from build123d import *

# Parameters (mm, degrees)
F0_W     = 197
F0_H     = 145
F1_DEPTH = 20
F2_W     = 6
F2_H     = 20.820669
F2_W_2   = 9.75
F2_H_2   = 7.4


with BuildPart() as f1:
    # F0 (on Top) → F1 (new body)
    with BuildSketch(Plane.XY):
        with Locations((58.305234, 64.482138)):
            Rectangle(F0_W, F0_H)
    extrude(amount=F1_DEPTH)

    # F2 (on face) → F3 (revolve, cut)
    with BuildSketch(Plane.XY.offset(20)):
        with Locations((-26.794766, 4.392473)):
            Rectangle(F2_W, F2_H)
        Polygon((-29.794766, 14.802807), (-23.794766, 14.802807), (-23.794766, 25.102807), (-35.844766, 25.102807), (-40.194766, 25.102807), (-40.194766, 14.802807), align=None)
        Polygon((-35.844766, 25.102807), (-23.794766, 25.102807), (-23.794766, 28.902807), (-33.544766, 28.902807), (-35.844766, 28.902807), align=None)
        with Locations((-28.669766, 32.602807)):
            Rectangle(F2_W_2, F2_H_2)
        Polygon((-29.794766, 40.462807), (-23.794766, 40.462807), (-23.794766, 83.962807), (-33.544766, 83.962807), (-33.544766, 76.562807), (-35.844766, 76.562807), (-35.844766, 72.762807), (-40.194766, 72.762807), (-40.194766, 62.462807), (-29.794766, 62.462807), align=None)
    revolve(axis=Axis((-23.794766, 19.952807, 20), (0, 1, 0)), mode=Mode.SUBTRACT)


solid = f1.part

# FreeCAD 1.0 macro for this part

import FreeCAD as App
import Part
import Sketcher

doc = App.newDocument("Part")
body = doc.addObject("PartDesign::Body", "Body")

sketch1 = body.newObject("Sketcher::SketchObject", "Sketch")
sketch1.AttachmentSupport = (doc.getObject("XY_Plane"), [""])
sketch1.MapMode = "FlatFace"
sketch1.addGeometry(Part.LineSegment(App.Vector(-40, 137, 0), App.Vector(-40, -8, 0)), False)
sketch1.addGeometry(Part.LineSegment(App.Vector(-40, -8, 0), App.Vector(157, -8, 0)), False)
sketch1.addGeometry(Part.LineSegment(App.Vector(157, -8, 0), App.Vector(157, 137, 0)), False)
sketch1.addGeometry(Part.LineSegment(App.Vector(157, 137, 0), App.Vector(-40, 137, 0)), False)
sketch1.addConstraint(Sketcher.Constraint("Coincident", 0, 2, 1, 1))
sketch1.addConstraint(Sketcher.Constraint("Coincident", 1, 2, 2, 1))
sketch1.addConstraint(Sketcher.Constraint("Coincident", 2, 2, 3, 1))
sketch1.addConstraint(Sketcher.Constraint("Coincident", 3, 2, 0, 1))
sketch1.addConstraint(Sketcher.Constraint("Vertical", 0))
sketch1.addConstraint(Sketcher.Constraint("Horizontal", 1))
sketch1.addConstraint(Sketcher.Constraint("Vertical", 2))
sketch1.addConstraint(Sketcher.Constraint("Horizontal", 3))
sketch1.addConstraint(Sketcher.Constraint("DistanceX", 1, 1, 1, 2, 197.0))
sketch1.addConstraint(Sketcher.Constraint("DistanceY", 0, 2, 0, 1, 145.0))
sketch1.addConstraint(Sketcher.Constraint("DistanceY", 0, 2, -1, 1, 8.017862))
sketch1.addConstraint(Sketcher.Constraint("DistanceX", 0, 2, -1, 1, 40.194766))
pad1 = body.newObject("PartDesign::Pad", "Pad")
pad1.Profile = sketch1
pad1.Length = 20

sketch2 = body.newObject("Sketcher::SketchObject", "Sketch001")
sketch2.AttachmentSupport = (doc.getObject("XY_Plane"), [""])
sketch2.MapMode = "FlatFace"
sketch2.AttachmentOffset = App.Placement(App.Vector(0, 0, 20), App.Rotation())
sketch2.addGeometry(Part.LineSegment(App.Vector(-29.8, 14.8, 0), App.Vector(-29.8, -6, 0)), False)
sketch2.addGeometry(Part.LineSegment(App.Vector(-29.8, -6, 0), App.Vector(-23.8, -6, 0)), False)
sketch2.addGeometry(Part.LineSegment(App.Vector(-23.8, -6, 0), App.Vector(-23.8, 36.3, 0)), False)
sketch2.addGeometry(Part.LineSegment(App.Vector(-23.8, 36.3, 0), App.Vector(-33.5, 36.3, 0)), False)
sketch2.addGeometry(Part.LineSegment(App.Vector(-33.5, 36.3, 0), App.Vector(-33.5, 28.9, 0)), False)
sketch2.addGeometry(Part.LineSegment(App.Vector(-33.5, 28.9, 0), App.Vector(-35.8, 28.9, 0)), False)
sketch2.addGeometry(Part.LineSegment(App.Vector(-35.8, 28.9, 0), App.Vector(-35.8, 25.1, 0)), False)
sketch2.addGeometry(Part.LineSegment(App.Vector(-35.8, 25.1, 0), App.Vector(-40.2, 25.1, 0)), False)
sketch2.addGeometry(Part.LineSegment(App.Vector(-40.2, 25.1, 0), App.Vector(-40.2, 14.8, 0)), False)
sketch2.addGeometry(Part.LineSegment(App.Vector(-40.2, 14.8, 0), App.Vector(-29.8, 14.8, 0)), False)
sketch2.addGeometry(Part.LineSegment(App.Vector(-29.8, 40.5, 0), App.Vector(-23.8, 40.5, 0)), False)
sketch2.addGeometry(Part.LineSegment(App.Vector(-23.8, 40.5, 0), App.Vector(-23.8, 84, 0)), False)
sketch2.addGeometry(Part.LineSegment(App.Vector(-23.8, 84, 0), App.Vector(-33.5, 84, 0)), False)
sketch2.addGeometry(Part.LineSegment(App.Vector(-33.5, 84, 0), App.Vector(-33.5, 76.6, 0)), False)
sketch2.addGeometry(Part.LineSegment(App.Vector(-33.5, 76.6, 0), App.Vector(-35.8, 76.6, 0)), False)
sketch2.addGeometry(Part.LineSegment(App.Vector(-35.8, 76.6, 0), App.Vector(-35.8, 72.8, 0)), False)
sketch2.addGeometry(Part.LineSegment(App.Vector(-35.8, 72.8, 0), App.Vector(-40.2, 72.8, 0)), False)
sketch2.addGeometry(Part.LineSegment(App.Vector(-40.2, 72.8, 0), App.Vector(-40.2, 62.5, 0)), False)
sketch2.addGeometry(Part.LineSegment(App.Vector(-40.2, 62.5, 0), App.Vector(-29.8, 62.5, 0)), False)
sketch2.addGeometry(Part.LineSegment(App.Vector(-29.8, 62.5, 0), App.Vector(-29.8, 40.5, 0)), False)
sketch2.addGeometry(Part.LineSegment(App.Vector(-23.8, -6, 0), App.Vector(-23.8, 84, 0)), True)
sketch2.addConstraint(Sketcher.Constraint("Coincident", 0, 2, 1, 1))
sketch2.addConstraint(Sketcher.Constraint("Coincident", 1, 2, 2, 1))
sketch2.addConstraint(Sketcher.Constraint("Coincident", 2, 2, 3, 1))
sketch2.addConstraint(Sketcher.Constraint("Coincident", 3, 2, 4, 1))
sketch2.addConstraint(Sketcher.Constraint("Coincident", 4, 2, 5, 1))
sketch2.addConstraint(Sketcher.Constraint("Coincident", 5, 2, 6, 1))
sketch2.addConstraint(Sketcher.Constraint("Coincident", 6, 2, 7, 1))
sketch2.addConstraint(Sketcher.Constraint("Coincident", 7, 2, 8, 1))
sketch2.addConstraint(Sketcher.Constraint("Coincident", 8, 2, 9, 1))
sketch2.addConstraint(Sketcher.Constraint("Coincident", 9, 2, 0, 1))
sketch2.addConstraint(Sketcher.Constraint("Coincident", 10, 2, 11, 1))
sketch2.addConstraint(Sketcher.Constraint("Coincident", 11, 2, 12, 1))
sketch2.addConstraint(Sketcher.Constraint("Coincident", 12, 2, 13, 1))
sketch2.addConstraint(Sketcher.Constraint("Coincident", 13, 2, 14, 1))
sketch2.addConstraint(Sketcher.Constraint("Coincident", 14, 2, 15, 1))
sketch2.addConstraint(Sketcher.Constraint("Coincident", 15, 2, 16, 1))
sketch2.addConstraint(Sketcher.Constraint("Coincident", 16, 2, 17, 1))
sketch2.addConstraint(Sketcher.Constraint("Coincident", 17, 2, 18, 1))
sketch2.addConstraint(Sketcher.Constraint("Coincident", 18, 2, 19, 1))
sketch2.addConstraint(Sketcher.Constraint("Coincident", 19, 2, 10, 1))
sketch2.addConstraint(Sketcher.Constraint("Vertical", 0))
sketch2.addConstraint(Sketcher.Constraint("Horizontal", 1))
sketch2.addConstraint(Sketcher.Constraint("Vertical", 2))
sketch2.addConstraint(Sketcher.Constraint("Horizontal", 3))
sketch2.addConstraint(Sketcher.Constraint("Vertical", 4))
sketch2.addConstraint(Sketcher.Constraint("Horizontal", 5))
sketch2.addConstraint(Sketcher.Constraint("Vertical", 6))
sketch2.addConstraint(Sketcher.Constraint("Horizontal", 7))
sketch2.addConstraint(Sketcher.Constraint("Vertical", 8))
sketch2.addConstraint(Sketcher.Constraint("Horizontal", 9))
sketch2.addConstraint(Sketcher.Constraint("Horizontal", 10))
sketch2.addConstraint(Sketcher.Constraint("Vertical", 11))
sketch2.addConstraint(Sketcher.Constraint("Horizontal", 12))
sketch2.addConstraint(Sketcher.Constraint("Vertical", 13))
sketch2.addConstraint(Sketcher.Constraint("Horizontal", 14))
sketch2.addConstraint(Sketcher.Constraint("Vertical", 15))
sketch2.addConstraint(Sketcher.Constraint("Horizontal", 16))
sketch2.addConstraint(Sketcher.Constraint("Vertical", 17))
sketch2.addConstraint(Sketcher.Constraint("Horizontal", 18))
sketch2.addConstraint(Sketcher.Constraint("Vertical", 19))
sketch2.addConstraint(Sketcher.Constraint("Vertical", 20))
sketch2.addConstraint(Sketcher.Constraint("Coincident", 20, 1, 1, 2))
sketch2.addConstraint(Sketcher.Constraint("Coincident", 20, 2, 11, 2))
sketch2.addConstraint(Sketcher.Constraint("Vertical", 4, 2, 12, 2))
sketch2.addConstraint(Sketcher.Constraint("Vertical", 6, 2, 14, 2))
sketch2.addConstraint(Sketcher.Constraint("Vertical", 8, 2, 16, 2))
sketch2.addConstraint(Sketcher.Constraint("Vertical", 9, 2, 18, 2))
sketch2.addConstraint(Sketcher.Constraint("Equal", 4, 13))
sketch2.addConstraint(Sketcher.Constraint("Equal", 6, 15))
sketch2.addConstraint(Sketcher.Constraint("Equal", 8, 17))
sketch2.addConstraint(Sketcher.Constraint("DistanceX", 1, 1, 1, 2, 6.0))
sketch2.addConstraint(Sketcher.Constraint("DistanceY", 19, 2, 19, 1, 22.0))
sketch2.addConstraint(Sketcher.Constraint("DistanceX", 5, 2, 5, 1, 2.3))
sketch2.addConstraint(Sketcher.Constraint("DistanceX", 9, 1, 9, 2, 10.4))
sketch2.addConstraint(Sketcher.Constraint("DistanceY", 4, 2, 4, 1, 7.4))
sketch2.addConstraint(Sketcher.Constraint("DistanceY", 6, 2, 6, 1, 3.8))
sketch2.addConstraint(Sketcher.Constraint("DistanceY", 8, 2, 8, 1, 10.3))
sketch2.addConstraint(Sketcher.Constraint("DistanceX", 3, 2, 3, 1, 9.75))
sketch2.addConstraint(Sketcher.Constraint("DistanceY", 2, 2, 10, 2, 4.16))
sketch2.addConstraint(Sketcher.Constraint("DistanceY", 0, 2, 0, 1, 20.820669))
sketch2.addConstraint(Sketcher.Constraint("DistanceY", 0, 2, -1, 1, 6.017862))
sketch2.addConstraint(Sketcher.Constraint("DistanceX", 0, 2, -1, 1, 29.794766))
groove = body.newObject("PartDesign::Groove", "Groove")
groove.Profile = sketch2
groove.ReferenceAxis = (sketch2, ["Axis0"])
groove.Angle = 360

doc.recompute()
